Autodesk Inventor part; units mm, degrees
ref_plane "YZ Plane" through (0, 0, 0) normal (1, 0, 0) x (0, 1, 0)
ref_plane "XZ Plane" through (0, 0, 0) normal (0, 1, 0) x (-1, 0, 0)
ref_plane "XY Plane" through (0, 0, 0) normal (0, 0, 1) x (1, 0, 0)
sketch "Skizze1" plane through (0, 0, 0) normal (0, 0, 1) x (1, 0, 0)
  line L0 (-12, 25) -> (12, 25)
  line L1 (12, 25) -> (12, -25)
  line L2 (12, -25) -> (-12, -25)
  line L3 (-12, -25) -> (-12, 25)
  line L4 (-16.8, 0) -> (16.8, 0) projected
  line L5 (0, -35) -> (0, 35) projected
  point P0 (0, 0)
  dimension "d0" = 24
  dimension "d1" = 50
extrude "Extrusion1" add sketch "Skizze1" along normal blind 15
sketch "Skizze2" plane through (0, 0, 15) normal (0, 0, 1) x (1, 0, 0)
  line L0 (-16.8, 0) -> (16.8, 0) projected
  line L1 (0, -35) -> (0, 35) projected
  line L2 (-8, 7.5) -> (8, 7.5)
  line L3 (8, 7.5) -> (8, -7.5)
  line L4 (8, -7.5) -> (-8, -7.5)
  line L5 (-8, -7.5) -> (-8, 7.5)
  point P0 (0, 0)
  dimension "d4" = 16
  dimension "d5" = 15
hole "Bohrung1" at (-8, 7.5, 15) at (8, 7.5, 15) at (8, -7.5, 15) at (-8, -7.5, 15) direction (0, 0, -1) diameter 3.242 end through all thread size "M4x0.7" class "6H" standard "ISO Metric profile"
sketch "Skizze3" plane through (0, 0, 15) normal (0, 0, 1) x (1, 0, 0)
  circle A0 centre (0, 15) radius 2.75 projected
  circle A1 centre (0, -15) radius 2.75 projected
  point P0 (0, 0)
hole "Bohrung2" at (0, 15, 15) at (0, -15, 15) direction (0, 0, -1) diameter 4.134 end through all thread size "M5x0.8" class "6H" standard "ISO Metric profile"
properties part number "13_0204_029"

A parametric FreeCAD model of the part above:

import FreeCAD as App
import Part
import Sketcher
from FreeCAD import Vector
Q = App.Units.Quantity

doc = App.newDocument("Part")
body = doc.addObject("PartDesign::Body", "Body")

sketch1 = body.newObject("Sketcher::SketchObject", "Sketch")
sketch1.AttachmentSupport = (doc.getObject("XY_Plane"), [""])
sketch1.MapMode = "FlatFace"
sketch1.addGeometry([
    Part.LineSegment(Vector(-12, 25, 0), Vector(-12, -25, 0)),
    Part.LineSegment(Vector(-12, -25, 0), Vector(12, -25, 0)),
    Part.LineSegment(Vector(12, -25, 0), Vector(12, 25, 0)),
    Part.LineSegment(Vector(12, 25, 0), Vector(-12, 25, 0)),
], False)
sketch1.addConstraint([
    Sketcher.Constraint("Coincident", 0, 2, 1, 1),
    Sketcher.Constraint("Coincident", 1, 2, 2, 1),
    Sketcher.Constraint("Coincident", 2, 2, 3, 1),
    Sketcher.Constraint("Coincident", 3, 2, 0, 1),
    Sketcher.Constraint("Vertical", 0),
    Sketcher.Constraint("Horizontal", 1),
    Sketcher.Constraint("Vertical", 2),
    Sketcher.Constraint("Horizontal", 3),
    Sketcher.Constraint("Symmetric", 0, 2, 2, 2, -1, 1),
    Sketcher.Constraint("DistanceX", 1, 1, 1, 2, Q("24 mm")),
    Sketcher.Constraint("DistanceY", 0, 2, 0, 1, Q("50 mm")),
])
pad1 = body.newObject("PartDesign::Pad", "Pad")
pad1.Profile = sketch1
pad1.Length = 15

sketch2 = body.newObject("Sketcher::SketchObject", "Sketch001")
sketch2.AttachmentSupport = (doc.getObject("XY_Plane"), [""])
sketch2.MapMode = "FlatFace"
sketch2.AttachmentOffset = App.Placement(Vector(0, 0, 15), App.Rotation())
sketch2.addGeometry([
    Part.Circle(Vector(-8, 7.5, 0), Vector(0, 0, 1), 1.6),
    Part.Circle(Vector(8, 7.5, 0), Vector(0, 0, 1), 1.6),
    Part.Circle(Vector(8, -7.5, 0), Vector(0, 0, 1), 1.6),
    Part.Circle(Vector(-8, -7.5, 0), Vector(0, 0, 1), 1.6),
], False)
sketch2.addConstraint([
    Sketcher.Constraint("Equal", 0, 1),
    Sketcher.Constraint("Equal", 1, 2),
    Sketcher.Constraint("Equal", 2, 3),
    Sketcher.Constraint("Symmetric", 0, 3, 2, 3, -1, 1),
    Sketcher.Constraint("Symmetric", 1, 3, 3, 3, -1, 1),
    Sketcher.Constraint("Symmetric", 0, 3, 1, 3, -2),
    Sketcher.Constraint("Diameter", 0, Q("3.242 mm")),
    Sketcher.Constraint("DistanceX", 0, 3, -1, 1, Q("8 mm")),
    Sketcher.Constraint("DistanceY", 2, 3, 1, 3, Q("15 mm")),
])
doc.recompute()
hole = body.newObject("PartDesign::Hole", "Hole")
hole.Profile = sketch2
hole.ThreadType = "None"
hole.Diameter = 3.242
hole.DepthType = "ThroughAll"

sketch3 = body.newObject("Sketcher::SketchObject", "Sketch002")
sketch3.AttachmentSupport = (doc.getObject("XY_Plane"), [""])
sketch3.MapMode = "FlatFace"
sketch3.AttachmentOffset = App.Placement(Vector(0, 0, 15), App.Rotation())
sketch3.addGeometry([
    Part.Circle(Vector(0, 15, 0), Vector(0, 0, 1), 2.1),
    Part.Circle(Vector(0, -15, 0), Vector(0, 0, 1), 2.1),
], False)
sketch3.addConstraint([
    Sketcher.Constraint("Equal", 0, 1),
    Sketcher.Constraint("Symmetric", 0, 3, 1, 3, -1, 1),
    Sketcher.Constraint("PointOnObject", 0, 3, -2),
    Sketcher.Constraint("Diameter", 0, Q("4.134 mm")),
    Sketcher.Constraint("DistanceY", -1, 1, 0, 3, Q("15 mm")),
])
doc.recompute()
hole2 = body.newObject("PartDesign::Hole", "Hole001")
hole2.Profile = sketch3
hole2.ThreadType = "None"
hole2.Diameter = 4.134
hole2.DepthType = "ThroughAll"

doc.recompute()
